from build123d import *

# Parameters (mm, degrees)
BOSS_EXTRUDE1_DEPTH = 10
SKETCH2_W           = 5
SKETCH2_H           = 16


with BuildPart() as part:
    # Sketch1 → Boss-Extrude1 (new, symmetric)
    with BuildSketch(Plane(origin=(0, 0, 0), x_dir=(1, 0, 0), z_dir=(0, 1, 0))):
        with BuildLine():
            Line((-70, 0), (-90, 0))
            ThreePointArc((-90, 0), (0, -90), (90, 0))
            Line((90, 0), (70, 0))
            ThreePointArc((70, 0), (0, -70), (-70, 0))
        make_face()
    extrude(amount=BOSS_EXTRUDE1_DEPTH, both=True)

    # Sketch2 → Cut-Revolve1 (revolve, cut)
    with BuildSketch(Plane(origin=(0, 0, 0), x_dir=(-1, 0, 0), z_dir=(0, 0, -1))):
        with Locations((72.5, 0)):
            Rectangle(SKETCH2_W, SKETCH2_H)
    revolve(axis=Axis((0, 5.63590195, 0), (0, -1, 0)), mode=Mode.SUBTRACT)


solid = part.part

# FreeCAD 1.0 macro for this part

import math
import FreeCAD as App
import Part
import Sketcher


def add_polygon(sketch, points):
    """Adds a closed chain of lines whose ends are joined by coincident constraints."""
    first, n = sketch.GeometryCount, len(points)
    for a, b in zip(points, points[1:] + points[:1]):
        sketch.addGeometry(Part.LineSegment(App.Vector(*a, 0), App.Vector(*b, 0)), False)
    for i in range(n):
        sketch.addConstraint(Sketcher.Constraint("Coincident", first + i, 2, first + (i + 1) % n, 1))

doc = App.newDocument("Part")
body = doc.addObject("PartDesign::Body", "Body")

sketch1 = doc.addObject("Sketcher::SketchObject", "Sketch")
body.addObject(sketch1)
sketch1.AttachmentSupport = (doc.XZ_Plane, [""])
sketch1.MapMode = "FlatFace"
sketch1.addGeometry(Part.LineSegment(App.Vector(-70, 0, 0), App.Vector(-90, 0, 0)), False)
sketch1.addGeometry(Part.ArcOfCircle(Part.Circle(App.Vector(0, 0, 0), App.Vector(0, 0, 1), 90), math.radians(0), math.radians(180)), False)
sketch1.addGeometry(Part.LineSegment(App.Vector(90, 0, 0), App.Vector(70, 0, 0)), False)
sketch1.addGeometry(Part.ArcOfCircle(Part.Circle(App.Vector(0, 0, 0), App.Vector(0, 0, 1), 70), math.radians(0), math.radians(180)), False)
sketch1.addConstraint(Sketcher.Constraint("Coincident", 0, 2, 1, 2))
sketch1.addConstraint(Sketcher.Constraint("Coincident", 1, 1, 2, 1))
sketch1.addConstraint(Sketcher.Constraint("Coincident", 2, 2, 3, 1))
sketch1.addConstraint(Sketcher.Constraint("Coincident", 3, 2, 0, 1))
sketch1.addConstraint(Sketcher.Constraint("Horizontal", 0))
sketch1.addConstraint(Sketcher.Constraint("Horizontal", 2))
sketch1.addConstraint(Sketcher.Constraint("Coincident", 1, 3, -1, 1))
sketch1.addConstraint(Sketcher.Constraint("Coincident", 3, 3, -1, 1))
sketch1.addConstraint(Sketcher.Constraint("PointOnObject", 0, 2, -1))
sketch1.addConstraint(Sketcher.Constraint("PointOnObject", 1, 1, -1))
sketch1.addConstraint(Sketcher.Constraint("Radius", 1, 90.0))
sketch1.addConstraint(Sketcher.Constraint("Radius", 3, 70.0))
pad1 = doc.addObject("PartDesign::Pad", "Pad")
body.addObject(pad1)
pad1.Profile = sketch1
pad1.Length = 20
pad1.Midplane = True

sketch2 = doc.addObject("Sketcher::SketchObject", "Sketch001")
body.addObject(sketch2)
sketch2.AttachmentSupport = (doc.XY_Plane, [""])
sketch2.MapMode = "FlatFace"
add_polygon(sketch2, [(-70, 8), (-70, -8), (-75, -8), (-75, 8)])
sketch2.addConstraint(Sketcher.Constraint("Vertical", 0))
sketch2.addConstraint(Sketcher.Constraint("Horizontal", 1))
sketch2.addConstraint(Sketcher.Constraint("Vertical", 2))
sketch2.addConstraint(Sketcher.Constraint("Horizontal", 3))
sketch2.addConstraint(Sketcher.Constraint("DistanceX", 1, 2, 1, 1, 5.0))
sketch2.addConstraint(Sketcher.Constraint("DistanceY", 0, 2, 0, 1, 16.0))
sketch2.addConstraint(Sketcher.Constraint("DistanceX", 0, 2, -1, 1, 70.0))
sketch2.addConstraint(Sketcher.Constraint("DistanceY", 0, 2, -1, 1, 8.0))
groove = doc.addObject("PartDesign::Groove", "Groove")
body.addObject(groove)
groove.Profile = sketch2
groove.ReferenceAxis = (sketch2, ["V_Axis"])
groove.Angle = 360

doc.recompute()
